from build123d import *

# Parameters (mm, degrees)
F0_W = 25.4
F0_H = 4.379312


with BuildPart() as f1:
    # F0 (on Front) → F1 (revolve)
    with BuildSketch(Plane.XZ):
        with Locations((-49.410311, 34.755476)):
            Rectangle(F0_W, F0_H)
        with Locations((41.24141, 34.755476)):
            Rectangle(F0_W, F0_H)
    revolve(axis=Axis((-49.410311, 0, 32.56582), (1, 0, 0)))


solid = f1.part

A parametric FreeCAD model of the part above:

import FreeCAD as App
import Part
import Sketcher
Q = App.Units.Quantity


def add_polygon(sketch, points):
    """Adds a closed chain of lines whose ends are joined by coincident constraints."""
    first, n = sketch.GeometryCount, len(points)
    for a, b in zip(points, points[1:] + points[:1]):
        sketch.addGeometry(Part.LineSegment(App.Vector(*a, 0), App.Vector(*b, 0)), False)
    for i in range(n):
        sketch.addConstraint(Sketcher.Constraint("Coincident", first + i, 2, first + (i + 1) % n, 1))

doc = App.newDocument("Part")
body = doc.addObject("PartDesign::Body", "Body")
body.AllowCompound = True

# Sketch on XZ plane
sketch1 = doc.addObject("Sketcher::SketchObject", "Sketch")
body.addObject(sketch1)
sketch1.AttachmentSupport = (doc.XZ_Plane, [""])
sketch1.MapMode = "FlatFace"
add_polygon(sketch1, [(-62.1, 36.9), (-62.1, 32.6), (-36.7, 32.6), (-36.7, 36.9)])  # lines 0-3
add_polygon(sketch1, [(28.5, 36.9), (28.5, 32.6), (53.9, 32.6), (53.9, 36.9)])  # lines 4-7
sketch1.addGeometry(Part.LineSegment(App.Vector(-62.1, 32.6, 0), App.Vector(53.9, 32.6, 0)), True)  # axis
sketch1.addConstraint([
    Sketcher.Constraint("Vertical", 0),
    Sketcher.Constraint("Horizontal", 1),
    Sketcher.Constraint("Vertical", 2),
    Sketcher.Constraint("Horizontal", 3),
    Sketcher.Constraint("Vertical", 4),
    Sketcher.Constraint("Horizontal", 5),
    Sketcher.Constraint("Vertical", 6),
    Sketcher.Constraint("Horizontal", 7),
    Sketcher.Constraint("Horizontal", 8),
    Sketcher.Constraint("Coincident", 8, 1, 0, 2),
    Sketcher.Constraint("Coincident", 8, 2, 5, 2),
    Sketcher.Constraint("Horizontal", 3, 2, 6, 2),
    Sketcher.Constraint("Equal", 3, 5),
    Sketcher.Constraint("DistanceX", 1, 1, 1, 2, Q("1 in")),
    Sketcher.Constraint("DistanceX", 8, 1, 8, 2, Q("116.051721 mm")),
    Sketcher.Constraint("DistanceY", 0, 2, 0, 1, Q("4.379312 mm")),
    Sketcher.Constraint("DistanceX", 0, 2, -1, 1, Q("62.110311 mm")),
    Sketcher.Constraint("DistanceY", -1, 1, 0, 2, Q("32.56582 mm")),
])
revolution = doc.addObject("PartDesign::Revolution", "Revolution")
body.addObject(revolution)
revolution.Profile = sketch1
revolution.ReferenceAxis = (sketch1, ["Axis0"])
revolution.Angle = 360

doc.recompute()
